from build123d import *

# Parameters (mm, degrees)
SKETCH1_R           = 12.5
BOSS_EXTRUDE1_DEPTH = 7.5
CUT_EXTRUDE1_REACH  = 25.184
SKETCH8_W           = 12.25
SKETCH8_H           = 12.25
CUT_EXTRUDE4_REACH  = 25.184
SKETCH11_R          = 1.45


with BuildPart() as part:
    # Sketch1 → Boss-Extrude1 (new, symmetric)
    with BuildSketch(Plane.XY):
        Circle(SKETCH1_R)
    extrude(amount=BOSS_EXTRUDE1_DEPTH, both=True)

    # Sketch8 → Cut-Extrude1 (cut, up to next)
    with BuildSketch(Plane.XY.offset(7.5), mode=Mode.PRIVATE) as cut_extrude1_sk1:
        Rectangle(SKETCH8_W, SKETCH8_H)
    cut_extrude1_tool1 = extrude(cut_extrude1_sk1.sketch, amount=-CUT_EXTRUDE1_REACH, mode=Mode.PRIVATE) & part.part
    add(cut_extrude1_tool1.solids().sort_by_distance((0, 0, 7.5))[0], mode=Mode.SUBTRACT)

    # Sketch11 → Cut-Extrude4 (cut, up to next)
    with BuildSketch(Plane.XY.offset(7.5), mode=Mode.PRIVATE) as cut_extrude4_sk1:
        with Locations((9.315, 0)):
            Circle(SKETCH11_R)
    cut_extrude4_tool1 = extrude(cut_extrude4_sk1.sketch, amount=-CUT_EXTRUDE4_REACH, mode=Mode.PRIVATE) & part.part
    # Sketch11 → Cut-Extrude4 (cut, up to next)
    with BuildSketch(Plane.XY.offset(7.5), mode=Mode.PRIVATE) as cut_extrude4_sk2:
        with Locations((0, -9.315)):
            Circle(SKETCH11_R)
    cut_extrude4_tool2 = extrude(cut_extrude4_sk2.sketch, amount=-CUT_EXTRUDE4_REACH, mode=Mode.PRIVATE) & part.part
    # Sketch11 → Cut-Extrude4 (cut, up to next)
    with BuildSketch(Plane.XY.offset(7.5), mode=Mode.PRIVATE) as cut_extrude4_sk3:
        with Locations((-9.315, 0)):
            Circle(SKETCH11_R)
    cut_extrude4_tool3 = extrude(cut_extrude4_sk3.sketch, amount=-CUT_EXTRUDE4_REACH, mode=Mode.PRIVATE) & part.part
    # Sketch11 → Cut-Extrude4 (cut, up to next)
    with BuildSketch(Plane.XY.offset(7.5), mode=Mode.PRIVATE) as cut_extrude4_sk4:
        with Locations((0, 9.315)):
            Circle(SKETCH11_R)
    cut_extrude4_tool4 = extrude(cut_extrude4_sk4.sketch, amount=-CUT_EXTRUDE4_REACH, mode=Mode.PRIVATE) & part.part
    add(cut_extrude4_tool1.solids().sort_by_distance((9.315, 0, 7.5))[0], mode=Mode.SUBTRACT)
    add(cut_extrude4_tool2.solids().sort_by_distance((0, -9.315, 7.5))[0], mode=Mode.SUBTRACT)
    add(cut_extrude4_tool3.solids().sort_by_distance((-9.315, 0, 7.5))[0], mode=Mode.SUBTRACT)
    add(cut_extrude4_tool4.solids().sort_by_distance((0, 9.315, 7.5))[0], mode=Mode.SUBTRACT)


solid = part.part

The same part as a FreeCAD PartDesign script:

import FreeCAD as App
import Part
import Sketcher

V = App.Vector
Q = App.Units.Quantity


def add_polygon(sketch, points):
    """Adds a closed chain of lines whose ends are joined by coincident constraints."""
    first, n = sketch.GeometryCount, len(points)
    for a, b in zip(points, points[1:] + points[:1]):
        sketch.addGeometry(Part.LineSegment(App.Vector(*a, 0), App.Vector(*b, 0)), False)
    for i in range(n):
        sketch.addConstraint(Sketcher.Constraint("Coincident", first + i, 2, first + (i + 1) % n, 1))

doc = App.newDocument("Part")
body = doc.addObject("PartDesign::Body", "Body")

sketch1 = doc.addObject("Sketcher::SketchObject", "Sketch")
body.addObject(sketch1)
sketch1.AttachmentSupport = (doc.XY_Plane, [""])
sketch1.MapMode = "FlatFace"
sketch1.addGeometry(Part.Circle(V(0, 0, 0), V(0, 0, 1), 12), False)
sketch1.addConstraint([
    Sketcher.Constraint("Coincident", 0, 3, -1, 1),
    Sketcher.Constraint("Diameter", 0, Q("25 mm")),
])
pad1 = doc.addObject("PartDesign::Pad", "Pad")
body.addObject(pad1)
pad1.Profile = sketch1
pad1.Length = 15
pad1.Midplane = True

sketch2 = doc.addObject("Sketcher::SketchObject", "Sketch001")
body.addObject(sketch2)
sketch2.AttachmentSupport = (doc.XY_Plane, [""])
sketch2.MapMode = "FlatFace"
sketch2.AttachmentOffset = App.Placement(V(0, 0, 7.5), App.Rotation())
add_polygon(sketch2, [(-6, 6), (-6, -6), (6, -6), (6, 6)])
sketch2.addConstraint([
    Sketcher.Constraint("Vertical", 0),
    Sketcher.Constraint("Horizontal", 1),
    Sketcher.Constraint("Vertical", 2),
    Sketcher.Constraint("Horizontal", 3),
    Sketcher.Constraint("Symmetric", 0, 2, 2, 2, -1, 1),
    Sketcher.Constraint("Equal", 3, 0),
    Sketcher.Constraint("DistanceX", 1, 1, 1, 2, Q("12.25 mm")),
])
pocket1 = doc.addObject("PartDesign::Pocket", "Pocket")
body.addObject(pocket1)
pocket1.Profile = sketch2
pocket1.Type = "UpToFirst"

sketch3 = doc.addObject("Sketcher::SketchObject", "Sketch002")
body.addObject(sketch3)
sketch3.AttachmentSupport = (doc.XY_Plane, [""])
sketch3.MapMode = "FlatFace"
sketch3.AttachmentOffset = App.Placement(V(0, 0, 7.5), App.Rotation())
sketch3.addGeometry(Part.Circle(V(9.3, 0, 0), V(0, 0, 1), 1.4), False)
sketch3.addConstraint([
    Sketcher.Constraint("PointOnObject", 0, 3, -1),
    Sketcher.Constraint("Diameter", 0, Q("2.9 mm")),
    Sketcher.Constraint("DistanceX", -1, 1, 0, 3, Q("9.315 mm")),
])
pocket2 = doc.addObject("PartDesign::Pocket", "Pocket001")
body.addObject(pocket2)
pocket2.Profile = sketch3
pocket2.Type = "UpToFirst"

sketch4 = doc.addObject("Sketcher::SketchObject", "Sketch003")
body.addObject(sketch4)
sketch4.AttachmentSupport = (doc.XY_Plane, [""])
sketch4.MapMode = "FlatFace"
sketch4.AttachmentOffset = App.Placement(V(0, 0, 7.5), App.Rotation())
sketch4.addGeometry(Part.Circle(V(0, -9.3, 0), V(0, 0, 1), 1.4), False)
sketch4.addConstraint([
    Sketcher.Constraint("PointOnObject", 0, 3, -2),
    Sketcher.Constraint("Diameter", 0, Q("2.9 mm")),
    Sketcher.Constraint("DistanceY", 0, 3, -1, 1, Q("9.315 mm")),
])
pocket3 = doc.addObject("PartDesign::Pocket", "Pocket002")
body.addObject(pocket3)
pocket3.Profile = sketch4
pocket3.Type = "UpToFirst"

sketch5 = doc.addObject("Sketcher::SketchObject", "Sketch004")
body.addObject(sketch5)
sketch5.AttachmentSupport = (doc.XY_Plane, [""])
sketch5.MapMode = "FlatFace"
sketch5.AttachmentOffset = App.Placement(V(0, 0, 7.5), App.Rotation())
sketch5.addGeometry(Part.Circle(V(-9.3, 0, 0), V(0, 0, 1), 1.4), False)
sketch5.addConstraint([
    Sketcher.Constraint("PointOnObject", 0, 3, -1),
    Sketcher.Constraint("Diameter", 0, Q("2.9 mm")),
    Sketcher.Constraint("DistanceX", 0, 3, -1, 1, Q("9.315 mm")),
])
pocket4 = doc.addObject("PartDesign::Pocket", "Pocket003")
body.addObject(pocket4)
pocket4.Profile = sketch5
pocket4.Type = "UpToFirst"

sketch6 = doc.addObject("Sketcher::SketchObject", "Sketch005")
body.addObject(sketch6)
sketch6.AttachmentSupport = (doc.XY_Plane, [""])
sketch6.MapMode = "FlatFace"
sketch6.AttachmentOffset = App.Placement(V(0, 0, 7.5), App.Rotation())
sketch6.addGeometry(Part.Circle(V(0, 9.3, 0), V(0, 0, 1), 1.4), False)
sketch6.addConstraint([
    Sketcher.Constraint("PointOnObject", 0, 3, -2),
    Sketcher.Constraint("Diameter", 0, Q("2.9 mm")),
    Sketcher.Constraint("DistanceY", -1, 1, 0, 3, Q("9.315 mm")),
])
pocket5 = doc.addObject("PartDesign::Pocket", "Pocket004")
body.addObject(pocket5)
pocket5.Profile = sketch6
pocket5.Type = "UpToFirst"

doc.recompute()
